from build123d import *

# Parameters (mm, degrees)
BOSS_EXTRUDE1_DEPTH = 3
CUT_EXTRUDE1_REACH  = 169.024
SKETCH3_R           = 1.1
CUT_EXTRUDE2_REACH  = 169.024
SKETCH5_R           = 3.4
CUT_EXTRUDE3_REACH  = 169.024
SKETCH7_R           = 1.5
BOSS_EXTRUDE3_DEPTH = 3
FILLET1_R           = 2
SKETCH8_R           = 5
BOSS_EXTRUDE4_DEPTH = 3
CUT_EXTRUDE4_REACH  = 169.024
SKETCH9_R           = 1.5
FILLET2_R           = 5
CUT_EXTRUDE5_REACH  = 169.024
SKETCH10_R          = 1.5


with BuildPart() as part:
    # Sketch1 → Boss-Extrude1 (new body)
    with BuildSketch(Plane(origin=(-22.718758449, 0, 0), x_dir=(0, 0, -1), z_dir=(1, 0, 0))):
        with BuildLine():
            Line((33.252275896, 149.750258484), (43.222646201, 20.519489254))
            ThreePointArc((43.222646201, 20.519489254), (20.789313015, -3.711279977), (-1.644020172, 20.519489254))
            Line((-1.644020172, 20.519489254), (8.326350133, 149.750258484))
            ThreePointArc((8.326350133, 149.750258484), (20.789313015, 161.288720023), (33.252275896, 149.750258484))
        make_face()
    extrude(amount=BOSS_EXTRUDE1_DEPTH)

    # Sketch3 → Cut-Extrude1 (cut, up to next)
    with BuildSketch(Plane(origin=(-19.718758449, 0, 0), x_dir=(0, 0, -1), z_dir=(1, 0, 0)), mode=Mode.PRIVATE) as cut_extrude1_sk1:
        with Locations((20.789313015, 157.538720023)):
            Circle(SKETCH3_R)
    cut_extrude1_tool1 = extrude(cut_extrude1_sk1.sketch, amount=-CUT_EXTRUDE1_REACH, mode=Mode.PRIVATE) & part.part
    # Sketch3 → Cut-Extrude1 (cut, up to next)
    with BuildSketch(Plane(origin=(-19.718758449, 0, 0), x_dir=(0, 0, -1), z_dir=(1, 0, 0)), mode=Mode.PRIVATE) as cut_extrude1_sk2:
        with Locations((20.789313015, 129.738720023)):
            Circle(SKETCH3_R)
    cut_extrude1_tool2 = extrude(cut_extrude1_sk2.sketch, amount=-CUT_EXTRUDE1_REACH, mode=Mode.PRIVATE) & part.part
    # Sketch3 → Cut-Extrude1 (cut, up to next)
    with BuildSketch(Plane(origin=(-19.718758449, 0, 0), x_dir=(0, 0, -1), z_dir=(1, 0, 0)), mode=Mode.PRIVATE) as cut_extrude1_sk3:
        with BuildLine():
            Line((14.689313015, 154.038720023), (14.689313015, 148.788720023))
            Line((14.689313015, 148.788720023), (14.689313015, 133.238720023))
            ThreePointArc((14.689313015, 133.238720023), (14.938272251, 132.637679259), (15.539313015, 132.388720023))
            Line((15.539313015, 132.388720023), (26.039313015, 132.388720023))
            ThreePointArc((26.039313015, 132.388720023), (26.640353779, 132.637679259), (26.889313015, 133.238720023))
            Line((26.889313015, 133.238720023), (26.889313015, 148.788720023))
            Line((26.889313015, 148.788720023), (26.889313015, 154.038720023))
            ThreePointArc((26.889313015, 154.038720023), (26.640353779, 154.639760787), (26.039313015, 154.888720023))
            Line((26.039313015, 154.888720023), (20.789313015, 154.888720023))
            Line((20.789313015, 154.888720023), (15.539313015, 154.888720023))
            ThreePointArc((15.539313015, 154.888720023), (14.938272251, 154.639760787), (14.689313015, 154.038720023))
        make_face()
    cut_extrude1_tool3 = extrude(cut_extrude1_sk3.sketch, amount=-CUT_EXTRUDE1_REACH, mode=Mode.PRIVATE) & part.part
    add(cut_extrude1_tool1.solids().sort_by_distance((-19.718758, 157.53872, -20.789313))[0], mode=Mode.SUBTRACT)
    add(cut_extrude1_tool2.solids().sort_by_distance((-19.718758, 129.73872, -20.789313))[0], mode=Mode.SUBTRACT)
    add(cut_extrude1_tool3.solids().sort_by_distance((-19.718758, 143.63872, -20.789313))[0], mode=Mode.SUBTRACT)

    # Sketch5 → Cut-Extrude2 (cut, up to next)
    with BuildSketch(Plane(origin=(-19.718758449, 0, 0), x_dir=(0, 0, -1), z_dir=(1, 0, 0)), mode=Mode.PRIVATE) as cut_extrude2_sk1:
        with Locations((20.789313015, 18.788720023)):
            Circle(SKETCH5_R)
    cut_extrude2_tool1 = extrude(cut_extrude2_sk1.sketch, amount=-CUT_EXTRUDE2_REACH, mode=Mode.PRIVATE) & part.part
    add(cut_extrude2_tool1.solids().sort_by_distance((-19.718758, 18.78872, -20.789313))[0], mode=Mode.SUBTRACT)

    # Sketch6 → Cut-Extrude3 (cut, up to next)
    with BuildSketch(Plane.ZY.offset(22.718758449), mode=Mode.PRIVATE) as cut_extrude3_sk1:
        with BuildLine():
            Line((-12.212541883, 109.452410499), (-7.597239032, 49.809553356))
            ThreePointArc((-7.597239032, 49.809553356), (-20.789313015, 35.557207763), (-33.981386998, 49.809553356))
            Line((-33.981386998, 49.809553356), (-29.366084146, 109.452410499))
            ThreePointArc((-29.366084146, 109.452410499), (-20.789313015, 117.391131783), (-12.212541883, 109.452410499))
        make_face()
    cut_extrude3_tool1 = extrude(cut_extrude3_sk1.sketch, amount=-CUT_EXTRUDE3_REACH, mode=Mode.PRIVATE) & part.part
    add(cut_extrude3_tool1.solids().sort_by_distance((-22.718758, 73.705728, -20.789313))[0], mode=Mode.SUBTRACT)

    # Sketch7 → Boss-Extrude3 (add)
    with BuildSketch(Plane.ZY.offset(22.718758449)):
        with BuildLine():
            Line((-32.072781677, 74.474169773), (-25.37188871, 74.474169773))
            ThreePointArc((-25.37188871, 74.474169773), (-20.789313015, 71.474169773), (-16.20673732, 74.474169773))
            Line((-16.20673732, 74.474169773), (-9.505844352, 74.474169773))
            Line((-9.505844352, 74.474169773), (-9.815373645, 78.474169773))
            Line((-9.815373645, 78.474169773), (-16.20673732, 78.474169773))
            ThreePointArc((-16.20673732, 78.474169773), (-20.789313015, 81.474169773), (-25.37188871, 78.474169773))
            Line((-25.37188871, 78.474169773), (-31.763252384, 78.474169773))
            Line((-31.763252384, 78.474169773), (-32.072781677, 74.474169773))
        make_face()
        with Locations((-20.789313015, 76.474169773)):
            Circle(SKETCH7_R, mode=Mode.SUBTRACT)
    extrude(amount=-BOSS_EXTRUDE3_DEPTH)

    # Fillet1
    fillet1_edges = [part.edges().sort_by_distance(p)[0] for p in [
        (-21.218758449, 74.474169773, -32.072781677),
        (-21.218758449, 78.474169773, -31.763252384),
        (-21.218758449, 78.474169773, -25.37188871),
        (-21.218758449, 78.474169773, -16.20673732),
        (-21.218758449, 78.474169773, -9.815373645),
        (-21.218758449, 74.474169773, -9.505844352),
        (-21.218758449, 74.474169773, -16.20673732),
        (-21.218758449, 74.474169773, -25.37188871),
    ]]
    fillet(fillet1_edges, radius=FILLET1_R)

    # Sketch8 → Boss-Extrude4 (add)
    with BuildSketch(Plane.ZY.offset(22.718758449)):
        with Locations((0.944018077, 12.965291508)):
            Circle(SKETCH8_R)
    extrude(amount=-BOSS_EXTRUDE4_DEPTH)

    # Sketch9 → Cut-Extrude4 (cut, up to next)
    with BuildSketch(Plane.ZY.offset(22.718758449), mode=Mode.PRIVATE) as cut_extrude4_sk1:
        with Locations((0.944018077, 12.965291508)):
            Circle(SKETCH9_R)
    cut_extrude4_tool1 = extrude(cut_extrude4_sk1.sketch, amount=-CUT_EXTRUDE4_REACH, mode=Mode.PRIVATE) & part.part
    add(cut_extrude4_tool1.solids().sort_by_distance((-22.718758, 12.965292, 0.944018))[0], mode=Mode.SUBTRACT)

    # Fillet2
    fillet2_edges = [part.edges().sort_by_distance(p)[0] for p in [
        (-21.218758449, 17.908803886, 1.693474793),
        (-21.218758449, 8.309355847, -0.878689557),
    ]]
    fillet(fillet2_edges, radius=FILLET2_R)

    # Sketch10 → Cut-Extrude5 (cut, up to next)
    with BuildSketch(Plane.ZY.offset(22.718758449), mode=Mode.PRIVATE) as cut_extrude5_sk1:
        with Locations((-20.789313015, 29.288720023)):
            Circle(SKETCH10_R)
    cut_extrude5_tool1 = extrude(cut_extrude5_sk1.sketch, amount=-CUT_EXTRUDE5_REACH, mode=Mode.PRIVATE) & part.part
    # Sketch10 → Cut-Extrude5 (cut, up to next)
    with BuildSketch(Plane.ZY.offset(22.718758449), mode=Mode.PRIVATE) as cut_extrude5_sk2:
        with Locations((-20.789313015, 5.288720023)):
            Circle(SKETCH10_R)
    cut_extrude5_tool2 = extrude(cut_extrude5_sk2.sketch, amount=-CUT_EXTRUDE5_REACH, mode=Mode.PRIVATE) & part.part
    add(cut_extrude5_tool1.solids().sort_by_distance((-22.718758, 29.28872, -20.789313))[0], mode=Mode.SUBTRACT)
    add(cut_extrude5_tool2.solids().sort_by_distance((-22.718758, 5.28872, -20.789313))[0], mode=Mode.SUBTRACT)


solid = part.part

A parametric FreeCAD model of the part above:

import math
import FreeCAD as App
import Part
import Sketcher
from FreeCAD import Vector
Q = App.Units.Quantity


def edges_at(feature, points):
    """Names of the edges that pass closest to the given points."""
    edges = feature.Shape.Edges
    near = lambda p: min(range(len(edges)), key=lambda i: edges[i].distToShape(Part.Vertex(*p))[0])
    return sorted({f"Edge{near(p) + 1}" for p in points})

doc = App.newDocument("Part")
params = doc.addObject("Spreadsheet::Sheet", "Params")
for row, (alias, value) in enumerate([
    ("sketch1_radius", "12.5 mm"),
    ("sketch1_radius2", "22.5 mm"),
    ("pad1_length", "3 mm"),
    ("sketch2_diameter", "2.2 mm"),
    ("sketch3_diameter", "2.2 mm"),
    ("sketch4_radius", "0.85 mm"),
    ("sketch4_width", "20.8 mm"),
    ("sketch4_height", "10.5 mm"),
    ("sketch5_diameter", "6.8 mm"),
    ("sketch7_diameter", "3 mm"),
    ("sketch7_radius", "5 mm"),
    ("pad2_length", "3 mm"),
    ("fillet_radius", "2 mm"),
    ("sketch8_diameter", "10 mm"),
    ("pad3_length", "3 mm"),
    ("sketch9_diameter", "3 mm"),
    ("fillet2_radius", "5 mm"),
    ("sketch10_diameter", "3 mm"),
    ("sketch11_diameter", "3 mm"),
], start=1):
    params.set(f"A{row}", alias)
    params.set(f"B{row}", "=" + value)
    params.setAlias(f"B{row}", alias)

body = doc.addObject("PartDesign::Body", "Body")

# Sketch on YZ plane
sketch1 = doc.addObject("Sketcher::SketchObject", "Sketch")
body.addObject(sketch1)
sketch1.AttachmentSupport = (doc.YZ_Plane, [""])
sketch1.MapMode = "FlatFace"
sketch1.AttachmentOffset = App.Placement(Vector(0, 0, -22.718758), App.Rotation())
sketch1.addGeometry([
    Part.LineSegment(Vector(21, -43, 0), Vector(150, -33, 0)),
    Part.ArcOfCircle(Part.Circle(Vector(149, -21, 0), Vector(0, 0, 1), 12), math.radians(-86), math.radians(86)),
    Part.LineSegment(Vector(150, -8, 0), Vector(21, 2, 0)),
    Part.ArcOfCircle(Part.Circle(Vector(19, -21, 0), Vector(0, 0, 1), 22), math.radians(86), math.radians(274)),
], False)
sketch1.addConstraint([
    Sketcher.Constraint("Tangent", 0, 2, 1, 1),
    Sketcher.Constraint("Tangent", 1, 2, 2, 1),
    Sketcher.Constraint("Tangent", 2, 2, 3, 1),
    Sketcher.Constraint("Tangent", 3, 2, 0, 1),
    Sketcher.Constraint("Horizontal", 1, 3, 3, 3),
    Sketcher.Constraint("Radius", 1, Q("12.5 mm")),
    Sketcher.Constraint("Radius", 3, Q("22.5 mm")),
    Sketcher.Constraint("DistanceX", 3, 3, 1, 3, Q("130 mm")),
    Sketcher.Constraint("DistanceX", -1, 1, 1, 3, Q("148.78872 mm")),
    Sketcher.Constraint("DistanceY", 1, 2, -1, 1, Q("8.32635 mm")),
])
sketch1.setExpression("Constraints[5]", "Params.sketch1_radius")
sketch1.setExpression("Constraints[6]", "Params.sketch1_radius2")
pad1 = doc.addObject("PartDesign::Pad", "Pad")
body.addObject(pad1)
pad1.Profile = sketch1
pad1.setExpression("Length", "Params.pad1_length")

# Sketch on YZ plane
sketch2 = doc.addObject("Sketcher::SketchObject", "Sketch001")
body.addObject(sketch2)
sketch2.AttachmentSupport = (doc.YZ_Plane, [""])
sketch2.MapMode = "FlatFace"
sketch2.AttachmentOffset = App.Placement(Vector(0, 0, -19.718758), App.Rotation())
sketch2.addGeometry(Part.Circle(Vector(157.5, -20.8, 0), Vector(0, 0, 1), 1.1), False)
sketch2.addConstraint([
    Sketcher.Constraint("Diameter", 0, Q("2.2 mm")),
    Sketcher.Constraint("DistanceX", -1, 1, 0, 3, Q("157.53872 mm")),
    Sketcher.Constraint("DistanceY", 0, 3, -1, 1, Q("20.789313 mm")),
])
sketch2.setExpression("Constraints[0]", "Params.sketch2_diameter")
pocket1 = doc.addObject("PartDesign::Pocket", "Pocket")
body.addObject(pocket1)
pocket1.Profile = sketch2
pocket1.Type = "UpToFirst"

# Sketch on YZ plane
sketch3 = doc.addObject("Sketcher::SketchObject", "Sketch002")
body.addObject(sketch3)
sketch3.AttachmentSupport = (doc.YZ_Plane, [""])
sketch3.MapMode = "FlatFace"
sketch3.AttachmentOffset = App.Placement(Vector(0, 0, -19.718758), App.Rotation())
sketch3.addGeometry(Part.Circle(Vector(129.7, -20.8, 0), Vector(0, 0, 1), 1.1), False)
sketch3.addConstraint([
    Sketcher.Constraint("Diameter", 0, Q("2.2 mm")),
    Sketcher.Constraint("DistanceX", -1, 1, 0, 3, Q("129.73872 mm")),
    Sketcher.Constraint("DistanceY", 0, 3, -1, 1, Q("20.789313 mm")),
])
sketch3.setExpression("Constraints[0]", "Params.sketch3_diameter")
pocket2 = doc.addObject("PartDesign::Pocket", "Pocket001")
body.addObject(pocket2)
pocket2.Profile = sketch3
pocket2.Type = "UpToFirst"

# Sketch on YZ plane
sketch4 = doc.addObject("Sketcher::SketchObject", "Sketch003")
body.addObject(sketch4)
sketch4.AttachmentSupport = (doc.YZ_Plane, [""])
sketch4.MapMode = "FlatFace"
sketch4.AttachmentOffset = App.Placement(Vector(0, 0, -19.718758), App.Rotation())
sketch4.addGeometry([
    Part.LineSegment(Vector(154, -14.7, 0), Vector(133.2, -14.7, 0)),  # 0
    Part.ArcOfCircle(Part.Circle(Vector(133.2, -15.5, 0), Vector(0, 0, 1), 0.8), math.radians(90), math.radians(180)),  # 1
    Part.LineSegment(Vector(132.4, -15.5, 0), Vector(132.4, -26, 0)),  # 2
    Part.ArcOfCircle(Part.Circle(Vector(133.2, -26, 0), Vector(0, 0, 1), 0.8), math.radians(180), math.radians(270)),  # 3
    Part.LineSegment(Vector(133.2, -26.9, 0), Vector(154, -26.9, 0)),  # 4
    Part.ArcOfCircle(Part.Circle(Vector(154, -26, 0), Vector(0, 0, 1), 0.8), math.radians(-90), math.radians(0)),  # 5
    Part.LineSegment(Vector(154.9, -26, 0), Vector(154.9, -15.5, 0)),  # 6
    Part.ArcOfCircle(Part.Circle(Vector(154, -15.5, 0), Vector(0, 0, 1), 0.8), math.radians(0), math.radians(90)),  # 7
], False)
sketch4.addConstraint([
    Sketcher.Constraint("Tangent", 0, 2, 1, 1),
    Sketcher.Constraint("Tangent", 1, 2, 2, 1),
    Sketcher.Constraint("Tangent", 2, 2, 3, 1),
    Sketcher.Constraint("Tangent", 3, 2, 4, 1),
    Sketcher.Constraint("Tangent", 4, 2, 5, 1),
    Sketcher.Constraint("Tangent", 5, 2, 6, 1),
    Sketcher.Constraint("Tangent", 6, 2, 7, 1),
    Sketcher.Constraint("Tangent", 7, 2, 0, 1),
    Sketcher.Constraint("Horizontal", 0),
    Sketcher.Constraint("Vertical", 2),
    Sketcher.Constraint("Horizontal", 4),
    Sketcher.Constraint("Vertical", 6),
    Sketcher.Constraint("Equal", 1, 3),
    Sketcher.Constraint("Equal", 3, 5),
    Sketcher.Constraint("Equal", 5, 7),
    Sketcher.Constraint("Radius", 1, Q("0.85 mm")),
    Sketcher.Constraint("DistanceX", 0, 2, 0, 1, Q("20.8 mm")),
    Sketcher.Constraint("DistanceY", 2, 2, 2, 1, Q("10.5 mm")),
    Sketcher.Constraint("DistanceX", -1, 1, 1, 3, Q("133.23872 mm")),
    Sketcher.Constraint("DistanceY", 1, 3, -1, 1, Q("15.539313 mm")),
])
sketch4.setExpression("Constraints[15]", "Params.sketch4_radius")
sketch4.setExpression("Constraints[16]", "Params.sketch4_width")
sketch4.setExpression("Constraints[17]", "Params.sketch4_height")
pocket3 = doc.addObject("PartDesign::Pocket", "Pocket002")
body.addObject(pocket3)
pocket3.Profile = sketch4
pocket3.Type = "UpToFirst"

# Sketch on YZ plane
sketch5 = doc.addObject("Sketcher::SketchObject", "Sketch004")
body.addObject(sketch5)
sketch5.AttachmentSupport = (doc.YZ_Plane, [""])
sketch5.MapMode = "FlatFace"
sketch5.AttachmentOffset = App.Placement(Vector(0, 0, -19.718758), App.Rotation())
sketch5.addGeometry(Part.Circle(Vector(18.8, -20.8, 0), Vector(0, 0, 1), 3.4), False)
sketch5.addConstraint([
    Sketcher.Constraint("Diameter", 0, Q("6.8 mm")),
    Sketcher.Constraint("DistanceX", -1, 1, 0, 3, Q("18.78872 mm")),
    Sketcher.Constraint("DistanceY", 0, 3, -1, 1, Q("20.789313 mm")),
])
sketch5.setExpression("Constraints[0]", "Params.sketch5_diameter")
pocket4 = doc.addObject("PartDesign::Pocket", "Pocket003")
body.addObject(pocket4)
pocket4.Profile = sketch5
pocket4.Type = "UpToFirst"

# Sketch on YZ plane
sketch6 = doc.addObject("Sketcher::SketchObject", "Sketch005")
body.addObject(sketch6)
sketch6.AttachmentSupport = (doc.YZ_Plane, [""])
sketch6.MapMode = "FlatFace"
sketch6.AttachmentOffset = App.Placement(Vector(0, 0, -22.718758), App.Rotation())
sketch6.addGeometry([
    Part.LineSegment(Vector(50, -8, 0), Vector(109, -12, 0)),
    Part.ArcOfCircle(Part.Circle(Vector(109, -21, 0), Vector(0, 0, 1), 9), math.radians(-86), math.radians(86)),
    Part.LineSegment(Vector(109, -29, 0), Vector(50, -34, 0)),
    Part.ArcOfCircle(Part.Circle(Vector(49, -21, 0), Vector(0, 0, 1), 13), math.radians(86), math.radians(274)),
], False)
sketch6.addConstraint([
    Sketcher.Constraint("Tangent", 0, 2, 1, 2),
    Sketcher.Constraint("Tangent", 1, 1, 2, 1),
    Sketcher.Constraint("Tangent", 2, 2, 3, 2),
    Sketcher.Constraint("Tangent", 3, 1, 0, 1),
    Sketcher.Constraint("Horizontal", 1, 3, 3, 3),
    Sketcher.Constraint("DistanceX", 3, 3, 1, 3, Q("60 mm")),
    Sketcher.Constraint("Radius", 1, Q("8.602412 mm")),
    Sketcher.Constraint("Radius", 3, Q("13.231512 mm")),
    Sketcher.Constraint("DistanceX", -1, 1, 1, 3, Q("108.78872 mm")),
    Sketcher.Constraint("DistanceY", 0, 2, -1, 1, Q("12.212542 mm")),
])
pocket5 = doc.addObject("PartDesign::Pocket", "Pocket004")
body.addObject(pocket5)
pocket5.Profile = sketch6
pocket5.Type = "UpToFirst"
pocket5.Reversed = True

# Sketch on YZ plane
sketch7 = doc.addObject("Sketcher::SketchObject", "Sketch006")
body.addObject(sketch7)
sketch7.AttachmentSupport = (doc.YZ_Plane, [""])
sketch7.MapMode = "FlatFace"
sketch7.AttachmentOffset = App.Placement(Vector(0, 0, -22.718758), App.Rotation())
sketch7.addGeometry([
    Part.LineSegment(Vector(74.5, -32.1, 0), Vector(74.5, -25.4, 0)),  # 0
    Part.ArcOfCircle(Part.Circle(Vector(76.5, -20.8, 0), Vector(0, 0, 1), 5), math.radians(114), math.radians(246)),  # 1
    Part.LineSegment(Vector(74.5, -16.2, 0), Vector(74.5, -9.5, 0)),  # 2
    Part.LineSegment(Vector(74.5, -9.5, 0), Vector(78.5, -9.8, 0)),  # 3
    Part.LineSegment(Vector(78.5, -9.8, 0), Vector(78.5, -16.2, 0)),  # 4
    Part.ArcOfCircle(Part.Circle(Vector(76.5, -20.8, 0), Vector(0, 0, 1), 5), math.radians(-66), math.radians(66)),  # 5
    Part.LineSegment(Vector(78.5, -25.4, 0), Vector(78.5, -31.8, 0)),  # 6
    Part.LineSegment(Vector(78.5, -31.8, 0), Vector(74.5, -32.1, 0)),  # 7
    Part.Circle(Vector(76.5, -20.8, 0), Vector(0, 0, 1), 1.5),  # 8
], False)
sketch7.addConstraint([
    Sketcher.Constraint("Coincident", 0, 2, 1, 2),
    Sketcher.Constraint("Coincident", 1, 1, 2, 1),
    Sketcher.Constraint("Coincident", 2, 2, 3, 1),
    Sketcher.Constraint("Coincident", 3, 2, 4, 1),
    Sketcher.Constraint("Coincident", 4, 2, 5, 2),
    Sketcher.Constraint("Coincident", 5, 1, 6, 1),
    Sketcher.Constraint("Coincident", 6, 2, 7, 1),
    Sketcher.Constraint("Coincident", 7, 2, 0, 1),
    Sketcher.Constraint("Vertical", 0),
    Sketcher.Constraint("Vertical", 2),
    Sketcher.Constraint("Vertical", 4),
    Sketcher.Constraint("Vertical", 6),
    Sketcher.Constraint("Coincident", 5, 3, 1, 3),
    Sketcher.Constraint("Coincident", 8, 3, 1, 3),
    Sketcher.Constraint("Equal", 1, 5),
    Sketcher.Constraint("Horizontal", 1, 1, 4, 2),
    Sketcher.Constraint("Horizontal", 0, 2, 5, 1),
    Sketcher.Constraint("Vertical", 0, 2, 1, 1),
    Sketcher.Constraint("Equal", 0, 2),
    Sketcher.Constraint("Equal", 4, 6),
    Sketcher.Constraint("Diameter", 8, Q("3 mm")),
    Sketcher.Constraint("Radius", 1, Q("5 mm")),
    Sketcher.Constraint("DistanceX", 0, 2, 1, 3, Q("2 mm")),
    Sketcher.Constraint("Distance", 3, Q("4.011958 mm")),
    Sketcher.Constraint("DistanceY", 0, 1, 0, 2, Q("6.700893 mm")),
    Sketcher.Constraint("DistanceX", -1, 1, 1, 3, Q("76.47417 mm")),
    Sketcher.Constraint("DistanceY", 0, 2, -1, 1, Q("25.371889 mm")),
])
sketch7.setExpression("Constraints[20]", "Params.sketch7_diameter")
sketch7.setExpression("Constraints[21]", "Params.sketch7_radius")
pad2 = doc.addObject("PartDesign::Pad", "Pad001")
body.addObject(pad2)
pad2.Profile = sketch7
pad2.setExpression("Length", "Params.pad2_length")
doc.recompute()

fillet = doc.addObject("PartDesign::Fillet", "Fillet")
body.addObject(fillet)
fillet.Base = (pad2, edges_at(pad2, [
    (-21.219, 74.474, -32.073),
    (-21.219, 78.474, -31.763),
    (-21.219, 78.474, -25.372),
    (-21.219, 78.474, -16.207),
    (-21.219, 78.474, -9.815),
    (-21.219, 74.474, -9.506),
    (-21.219, 74.474, -16.207),
    (-21.219, 74.474, -25.372),
]))
fillet.setExpression("Radius", "Params.fillet_radius")

# Sketch on YZ plane
sketch8 = doc.addObject("Sketcher::SketchObject", "Sketch007")
body.addObject(sketch8)
sketch8.AttachmentSupport = (doc.YZ_Plane, [""])
sketch8.MapMode = "FlatFace"
sketch8.AttachmentOffset = App.Placement(Vector(0, 0, -22.718758), App.Rotation())
sketch8.addGeometry(Part.Circle(Vector(13, 1, 0), Vector(0, 0, 1), 5), False)
sketch8.addConstraint([
    Sketcher.Constraint("Diameter", 0, Q("10 mm")),
    Sketcher.Constraint("DistanceX", -1, 1, 0, 3, Q("12.965292 mm")),
    Sketcher.Constraint("DistanceY", -1, 1, 0, 3, Q("0.944018 mm")),
])
sketch8.setExpression("Constraints[0]", "Params.sketch8_diameter")
pad3 = doc.addObject("PartDesign::Pad", "Pad002")
body.addObject(pad3)
pad3.Profile = sketch8
pad3.setExpression("Length", "Params.pad3_length")

# Sketch on YZ plane
sketch9 = doc.addObject("Sketcher::SketchObject", "Sketch008")
body.addObject(sketch9)
sketch9.AttachmentSupport = (doc.YZ_Plane, [""])
sketch9.MapMode = "FlatFace"
sketch9.AttachmentOffset = App.Placement(Vector(0, 0, -22.718758), App.Rotation())
sketch9.addGeometry(Part.Circle(Vector(13, 0.9, 0), Vector(0, 0, 1), 1.5), False)
sketch9.addConstraint([
    Sketcher.Constraint("Diameter", 0, Q("3 mm")),
    Sketcher.Constraint("DistanceX", -1, 1, 0, 3, Q("12.965292 mm")),
    Sketcher.Constraint("DistanceY", -1, 1, 0, 3, Q("0.944018 mm")),
])
sketch9.setExpression("Constraints[0]", "Params.sketch9_diameter")
pocket6 = doc.addObject("PartDesign::Pocket", "Pocket005")
body.addObject(pocket6)
pocket6.Profile = sketch9
pocket6.Type = "UpToFirst"
pocket6.Reversed = True
doc.recompute()

fillet2 = doc.addObject("PartDesign::Fillet", "Fillet001")
body.addObject(fillet2)
fillet2.Base = (pocket6, edges_at(pocket6, [(-21.219, 17.909, 1.693), (-21.219, 8.309, -0.879)]))
fillet2.setExpression("Radius", "Params.fillet2_radius")

# Sketch on YZ plane
sketch10 = doc.addObject("Sketcher::SketchObject", "Sketch009")
body.addObject(sketch10)
sketch10.AttachmentSupport = (doc.YZ_Plane, [""])
sketch10.MapMode = "FlatFace"
sketch10.AttachmentOffset = App.Placement(Vector(0, 0, -22.718758), App.Rotation())
sketch10.addGeometry(Part.Circle(Vector(29.3, -20.8, 0), Vector(0, 0, 1), 1.5), False)
sketch10.addConstraint([
    Sketcher.Constraint("Diameter", 0, Q("3 mm")),
    Sketcher.Constraint("DistanceX", -1, 1, 0, 3, Q("29.28872 mm")),
    Sketcher.Constraint("DistanceY", 0, 3, -1, 1, Q("20.789313 mm")),
])
sketch10.setExpression("Constraints[0]", "Params.sketch10_diameter")
pocket7 = doc.addObject("PartDesign::Pocket", "Pocket006")
body.addObject(pocket7)
pocket7.Profile = sketch10
pocket7.Type = "UpToFirst"
pocket7.Reversed = True

# Sketch on YZ plane
sketch11 = doc.addObject("Sketcher::SketchObject", "Sketch010")
body.addObject(sketch11)
sketch11.AttachmentSupport = (doc.YZ_Plane, [""])
sketch11.MapMode = "FlatFace"
sketch11.AttachmentOffset = App.Placement(Vector(0, 0, -22.718758), App.Rotation())
sketch11.addGeometry(Part.Circle(Vector(5.3, -20.8, 0), Vector(0, 0, 1), 1.5), False)
sketch11.addConstraint([
    Sketcher.Constraint("Diameter", 0, Q("3 mm")),
    Sketcher.Constraint("DistanceX", -1, 1, 0, 3, Q("5.28872 mm")),
    Sketcher.Constraint("DistanceY", 0, 3, -1, 1, Q("20.789313 mm")),
])
sketch11.setExpression("Constraints[0]", "Params.sketch11_diameter")
pocket8 = doc.addObject("PartDesign::Pocket", "Pocket007")
body.addObject(pocket8)
pocket8.Profile = sketch11
pocket8.Type = "UpToFirst"
pocket8.Reversed = True

doc.recompute()
